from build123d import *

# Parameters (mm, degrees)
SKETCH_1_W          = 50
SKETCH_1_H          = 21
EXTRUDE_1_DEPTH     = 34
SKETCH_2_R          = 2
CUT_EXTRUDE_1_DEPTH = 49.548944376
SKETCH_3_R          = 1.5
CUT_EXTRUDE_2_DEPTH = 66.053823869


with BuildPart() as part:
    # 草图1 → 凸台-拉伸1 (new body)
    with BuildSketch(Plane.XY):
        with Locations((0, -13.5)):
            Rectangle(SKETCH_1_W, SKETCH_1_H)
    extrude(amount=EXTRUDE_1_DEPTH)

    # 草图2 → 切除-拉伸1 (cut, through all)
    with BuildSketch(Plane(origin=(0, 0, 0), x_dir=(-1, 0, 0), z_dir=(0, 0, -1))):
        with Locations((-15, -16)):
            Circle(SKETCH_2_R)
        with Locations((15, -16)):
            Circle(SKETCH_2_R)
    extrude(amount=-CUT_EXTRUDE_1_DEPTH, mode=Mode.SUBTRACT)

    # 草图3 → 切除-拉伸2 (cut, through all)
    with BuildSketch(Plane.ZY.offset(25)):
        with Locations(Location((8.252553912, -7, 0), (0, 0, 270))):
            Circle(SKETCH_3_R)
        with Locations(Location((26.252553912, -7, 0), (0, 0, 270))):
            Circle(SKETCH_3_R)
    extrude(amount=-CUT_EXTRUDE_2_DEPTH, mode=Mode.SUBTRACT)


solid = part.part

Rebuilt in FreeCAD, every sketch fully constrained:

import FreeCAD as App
import Part
import Sketcher

V = App.Vector
Q = App.Units.Quantity

doc = App.newDocument("Part")
params = doc.addObject("Spreadsheet::Sheet", "Params")
for row, (alias, value) in enumerate([
    ("sketch1_width", "50 mm"),
    ("sketch1_height", "21 mm"),
    ("pad1_length", "34 mm"),
    ("sketch2_diameter", "4 mm"),
    ("sketch3_diameter", "3 mm"),
], start=1):
    params.set(f"A{row}", alias)
    params.set(f"B{row}", "=" + value)
    params.setAlias(f"B{row}", alias)

body = doc.addObject("PartDesign::Body", "Body")

sketch1 = body.newObject("Sketcher::SketchObject", "Sketch")
sketch1.AttachmentSupport = (doc.getObject("XY_Plane"), [""])
sketch1.MapMode = "FlatFace"
sketch1.addGeometry([
    Part.LineSegment(V(-25, -3, 0), V(-25, -24, 0)),
    Part.LineSegment(V(-25, -24, 0), V(25, -24, 0)),
    Part.LineSegment(V(25, -24, 0), V(25, -3, 0)),
    Part.LineSegment(V(25, -3, 0), V(-25, -3, 0)),
], False)
sketch1.addConstraint([
    Sketcher.Constraint("Coincident", 0, 2, 1, 1),
    Sketcher.Constraint("Coincident", 1, 2, 2, 1),
    Sketcher.Constraint("Coincident", 2, 2, 3, 1),
    Sketcher.Constraint("Coincident", 3, 2, 0, 1),
    Sketcher.Constraint("Vertical", 0),
    Sketcher.Constraint("Horizontal", 1),
    Sketcher.Constraint("Vertical", 2),
    Sketcher.Constraint("Horizontal", 3),
    Sketcher.Constraint("DistanceX", 1, 1, 1, 2, Q("50 mm")),
    Sketcher.Constraint("DistanceY", 0, 2, 0, 1, Q("21 mm")),
    Sketcher.Constraint("DistanceX", 0, 2, -1, 1, Q("25 mm")),
    Sketcher.Constraint("DistanceY", 0, 2, -1, 1, Q("24 mm")),
])
sketch1.setExpression("Constraints[8]", "Params.sketch1_width")
sketch1.setExpression("Constraints[9]", "Params.sketch1_height")
pad1 = body.newObject("PartDesign::Pad", "Pad")
pad1.Profile = sketch1
pad1.setExpression("Length", "Params.pad1_length")

sketch2 = body.newObject("Sketcher::SketchObject", "Sketch001")
sketch2.AttachmentSupport = (doc.getObject("XY_Plane"), [""])
sketch2.MapMode = "FlatFace"
sketch2.addGeometry([
    Part.Circle(V(15, -16, 0), V(0, 0, 1), 2),
    Part.Circle(V(-15, -16, 0), V(0, 0, 1), 2),
], False)
sketch2.addConstraint([
    Sketcher.Constraint("Equal", 0, 1),
    Sketcher.Constraint("Symmetric", 0, 3, 1, 3, -2),
    Sketcher.Constraint("Diameter", 0, Q("4 mm")),
    Sketcher.Constraint("DistanceX", -1, 1, 0, 3, Q("15 mm")),
    Sketcher.Constraint("DistanceY", 0, 3, -1, 1, Q("16 mm")),
])
sketch2.setExpression("Constraints[2]", "Params.sketch2_diameter")
pocket1 = body.newObject("PartDesign::Pocket", "Pocket")
pocket1.Profile = sketch2
pocket1.Type = "ThroughAll"
pocket1.Reversed = True

sketch3 = body.newObject("Sketcher::SketchObject", "Sketch002")
sketch3.AttachmentSupport = (doc.getObject("YZ_Plane"), [""])
sketch3.MapMode = "FlatFace"
sketch3.AttachmentOffset = App.Placement(V(0, 0, -25), App.Rotation())
sketch3.addGeometry([
    Part.Circle(V(-7, 8.252554, 0), V(0, 0, 1), 1.5),
    Part.Circle(V(-7, 26.252554, 0), V(0, 0, 1), 1.5),
], False)
sketch3.addConstraint([
    Sketcher.Constraint("Equal", 0, 1),
    Sketcher.Constraint("Vertical", 0, 3, 1, 3),
    Sketcher.Constraint("Diameter", 0, Q("3 mm")),
    Sketcher.Constraint("DistanceX", 0, 3, -1, 1, Q("7 mm")),
    Sketcher.Constraint("DistanceY", 0, 3, 1, 3, Q("18 mm")),
    Sketcher.Constraint("DistanceY", -1, 1, 0, 3, Q("8.252554 mm")),
])
sketch3.setExpression("Constraints[2]", "Params.sketch3_diameter")
pocket2 = body.newObject("PartDesign::Pocket", "Pocket001")
pocket2.Profile = sketch3
pocket2.Type = "ThroughAll"
pocket2.Reversed = True

doc.recompute()
